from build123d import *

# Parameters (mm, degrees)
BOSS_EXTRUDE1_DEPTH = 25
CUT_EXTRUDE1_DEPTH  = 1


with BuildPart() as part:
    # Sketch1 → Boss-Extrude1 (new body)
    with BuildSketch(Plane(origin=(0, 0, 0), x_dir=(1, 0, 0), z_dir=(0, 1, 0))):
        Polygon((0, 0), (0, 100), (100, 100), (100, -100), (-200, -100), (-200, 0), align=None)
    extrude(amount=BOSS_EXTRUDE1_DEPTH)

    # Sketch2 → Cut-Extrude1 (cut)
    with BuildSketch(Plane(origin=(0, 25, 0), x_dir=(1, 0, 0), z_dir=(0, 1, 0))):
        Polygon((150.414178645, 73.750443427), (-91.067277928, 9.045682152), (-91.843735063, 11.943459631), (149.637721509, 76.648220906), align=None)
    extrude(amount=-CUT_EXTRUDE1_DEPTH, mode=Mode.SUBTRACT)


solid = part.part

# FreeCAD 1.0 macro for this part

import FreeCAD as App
import Part
import Sketcher

V = App.Vector
Q = App.Units.Quantity

doc = App.newDocument("Part")
body = doc.addObject("PartDesign::Body", "Body")

# Sketch on XZ plane
sketch1 = doc.addObject("Sketcher::SketchObject", "Sketch")
body.addObject(sketch1)
sketch1.AttachmentSupport = (doc.XZ_Plane, [""])
sketch1.MapMode = "FlatFace"
sketch1.addGeometry(Part.LineSegment(V(0, -100, 0), V(0, 0, 0)), False)
sketch1.addGeometry(Part.LineSegment(V(0, 0, 0), V(-200, 0, 0)), False)
sketch1.addGeometry(Part.LineSegment(V(-200, 0, 0), V(-200, 100, 0)), False)
sketch1.addGeometry(Part.LineSegment(V(-200, 100, 0), V(100, 100, 0)), False)
sketch1.addGeometry(Part.LineSegment(V(100, 100, 0), V(100, -100, 0)), False)
sketch1.addGeometry(Part.LineSegment(V(100, -100, 0), V(0, -100, 0)), False)
sketch1.addConstraint(Sketcher.Constraint("Coincident", 0, 2, 1, 1))
sketch1.addConstraint(Sketcher.Constraint("Coincident", 1, 2, 2, 1))
sketch1.addConstraint(Sketcher.Constraint("Coincident", 2, 2, 3, 1))
sketch1.addConstraint(Sketcher.Constraint("Coincident", 3, 2, 4, 1))
sketch1.addConstraint(Sketcher.Constraint("Coincident", 4, 2, 5, 1))
sketch1.addConstraint(Sketcher.Constraint("Coincident", 5, 2, 0, 1))
sketch1.addConstraint(Sketcher.Constraint("Vertical", 0))
sketch1.addConstraint(Sketcher.Constraint("Horizontal", 1))
sketch1.addConstraint(Sketcher.Constraint("Vertical", 2))
sketch1.addConstraint(Sketcher.Constraint("Horizontal", 3))
sketch1.addConstraint(Sketcher.Constraint("Vertical", 4))
sketch1.addConstraint(Sketcher.Constraint("Horizontal", 5))
sketch1.addConstraint(Sketcher.Constraint("Coincident", 0, 2, -1, 1))
sketch1.addConstraint(Sketcher.Constraint("Equal", 5, 0))
sketch1.addConstraint(Sketcher.Constraint("Equal", 0, 2))
sketch1.addConstraint(Sketcher.Constraint("Equal", 1, 4))
sketch1.addConstraint(Sketcher.Constraint("DistanceX", 1, 2, 1, 1, 200.0))
pad1 = doc.addObject("PartDesign::Pad", "Pad")
body.addObject(pad1)
pad1.Profile = sketch1
pad1.Length = 25
pad1.Reversed = True

# Sketch on XZ plane
sketch2 = doc.addObject("Sketcher::SketchObject", "Sketch001")
body.addObject(sketch2)
sketch2.AttachmentSupport = (doc.XZ_Plane, [""])
sketch2.MapMode = "FlatFace"
sketch2.AttachmentOffset = App.Placement(V(0, 0, -25), App.Rotation())
sketch2.addGeometry(Part.LineSegment(V(-91.1, -9, 0), V(150.4, -73.8, 0)), False)
sketch2.addGeometry(Part.LineSegment(V(150.4, -73.8, 0), V(149.6, -76.6, 0)), False)
sketch2.addGeometry(Part.LineSegment(V(149.6, -76.6, 0), V(-91.8, -11.9, 0)), False)
sketch2.addGeometry(Part.LineSegment(V(-91.8, -11.9, 0), V(-91.1, -9, 0)), False)
sketch2.addConstraint(Sketcher.Constraint("Coincident", 0, 2, 1, 1))
sketch2.addConstraint(Sketcher.Constraint("Coincident", 1, 2, 2, 1))
sketch2.addConstraint(Sketcher.Constraint("Coincident", 2, 2, 3, 1))
sketch2.addConstraint(Sketcher.Constraint("Coincident", 3, 2, 0, 1))
sketch2.addConstraint(Sketcher.Constraint("Perpendicular", 0, 1))
sketch2.addConstraint(Sketcher.Constraint("Perpendicular", 1, 2))
sketch2.addConstraint(Sketcher.Constraint("Perpendicular", 2, 3))
sketch2.addConstraint(Sketcher.Constraint("Angle", 0, Q("-15 deg")))
sketch2.addConstraint(Sketcher.Constraint("Distance", 0, 250.0))
sketch2.addConstraint(Sketcher.Constraint("Distance", 1, 3.0))
sketch2.addConstraint(Sketcher.Constraint("DistanceX", -1, 1, 0, 2, 150.414179))
sketch2.addConstraint(Sketcher.Constraint("DistanceY", 1, 2, -1, 1, 76.648221))
pocket1 = doc.addObject("PartDesign::Pocket", "Pocket")
body.addObject(pocket1)
pocket1.Profile = sketch2
pocket1.Length = 1
pocket1.Reversed = True

doc.recompute()
